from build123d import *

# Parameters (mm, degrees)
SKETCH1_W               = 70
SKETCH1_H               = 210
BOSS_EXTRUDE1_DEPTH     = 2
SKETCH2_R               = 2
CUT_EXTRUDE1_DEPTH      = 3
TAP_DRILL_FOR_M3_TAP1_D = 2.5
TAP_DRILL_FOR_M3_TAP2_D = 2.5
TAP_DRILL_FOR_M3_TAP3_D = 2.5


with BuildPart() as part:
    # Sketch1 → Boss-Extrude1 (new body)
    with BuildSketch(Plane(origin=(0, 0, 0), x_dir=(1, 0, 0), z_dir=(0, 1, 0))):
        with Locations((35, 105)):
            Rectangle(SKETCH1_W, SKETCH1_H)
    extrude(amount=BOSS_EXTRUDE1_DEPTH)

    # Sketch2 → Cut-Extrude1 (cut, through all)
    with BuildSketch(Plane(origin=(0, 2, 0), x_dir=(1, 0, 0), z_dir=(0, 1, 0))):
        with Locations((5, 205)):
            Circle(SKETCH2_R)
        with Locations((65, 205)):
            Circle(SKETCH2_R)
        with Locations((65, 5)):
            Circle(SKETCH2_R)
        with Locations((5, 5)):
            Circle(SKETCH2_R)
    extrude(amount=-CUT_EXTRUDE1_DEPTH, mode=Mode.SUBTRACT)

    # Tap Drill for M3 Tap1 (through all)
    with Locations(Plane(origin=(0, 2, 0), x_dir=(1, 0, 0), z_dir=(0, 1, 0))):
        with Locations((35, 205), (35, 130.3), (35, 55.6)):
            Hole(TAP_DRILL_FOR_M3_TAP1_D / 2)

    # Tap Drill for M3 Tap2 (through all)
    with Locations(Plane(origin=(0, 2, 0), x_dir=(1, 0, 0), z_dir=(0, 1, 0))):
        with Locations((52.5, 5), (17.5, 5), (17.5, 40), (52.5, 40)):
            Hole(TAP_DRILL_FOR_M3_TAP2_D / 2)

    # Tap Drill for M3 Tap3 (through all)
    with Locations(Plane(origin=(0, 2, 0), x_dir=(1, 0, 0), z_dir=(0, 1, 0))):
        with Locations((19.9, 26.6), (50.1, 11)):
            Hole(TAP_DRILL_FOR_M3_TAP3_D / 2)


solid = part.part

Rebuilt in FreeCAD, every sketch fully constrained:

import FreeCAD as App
import Part
import Sketcher


def add_polygon(sketch, points):
    """Adds a closed chain of lines whose ends are joined by coincident constraints."""
    first, n = sketch.GeometryCount, len(points)
    for a, b in zip(points, points[1:] + points[:1]):
        sketch.addGeometry(Part.LineSegment(App.Vector(*a, 0), App.Vector(*b, 0)), False)
    for i in range(n):
        sketch.addConstraint(Sketcher.Constraint("Coincident", first + i, 2, first + (i + 1) % n, 1))

doc = App.newDocument("Part")
body = doc.addObject("PartDesign::Body", "Body")

# Sketch on XZ plane
sketch1 = doc.addObject("Sketcher::SketchObject", "Sketch")
body.addObject(sketch1)
sketch1.AttachmentSupport = (doc.XZ_Plane, [""])
sketch1.MapMode = "FlatFace"
add_polygon(sketch1, [(0, -210), (0, 0), (70, 0), (70, -210)])  # lines 0-3
sketch1.addConstraint(Sketcher.Constraint("Vertical", 0))
sketch1.addConstraint(Sketcher.Constraint("Horizontal", 1))
sketch1.addConstraint(Sketcher.Constraint("Vertical", 2))
sketch1.addConstraint(Sketcher.Constraint("Horizontal", 3))
sketch1.addConstraint(Sketcher.Constraint("Coincident", 0, 2, -1, 1))
sketch1.addConstraint(Sketcher.Constraint("DistanceX", 1, 1, 1, 2, 70.0))
sketch1.addConstraint(Sketcher.Constraint("DistanceY", 0, 1, 0, 2, 210.0))
pad1 = doc.addObject("PartDesign::Pad", "Pad")
body.addObject(pad1)
pad1.Profile = sketch1
pad1.Length = 2
pad1.Reversed = True

# Sketch on XZ plane
sketch2 = doc.addObject("Sketcher::SketchObject", "Sketch001")
body.addObject(sketch2)
sketch2.AttachmentSupport = (doc.XZ_Plane, [""])
sketch2.MapMode = "FlatFace"
sketch2.AttachmentOffset = App.Placement(App.Vector(0, 0, -2), App.Rotation())
sketch2.addGeometry(Part.Circle(App.Vector(5, -205, 0), App.Vector(0, 0, 1), 2), False)
sketch2.addGeometry(Part.Circle(App.Vector(65, -205, 0), App.Vector(0, 0, 1), 2), False)
sketch2.addGeometry(Part.Circle(App.Vector(65, -5, 0), App.Vector(0, 0, 1), 2), False)
sketch2.addGeometry(Part.Circle(App.Vector(5, -5, 0), App.Vector(0, 0, 1), 2), False)
sketch2.addConstraint(Sketcher.Constraint("Equal", 0, 1))
sketch2.addConstraint(Sketcher.Constraint("Equal", 1, 2))
sketch2.addConstraint(Sketcher.Constraint("Equal", 2, 3))
sketch2.addConstraint(Sketcher.Constraint("Horizontal", 0, 3, 1, 3))
sketch2.addConstraint(Sketcher.Constraint("Horizontal", 2, 3, 3, 3))
sketch2.addConstraint(Sketcher.Constraint("Vertical", 1, 3, 2, 3))
sketch2.addConstraint(Sketcher.Constraint("Vertical", 0, 3, 3, 3))
sketch2.addConstraint(Sketcher.Constraint("Diameter", 0, 4.0))
sketch2.addConstraint(Sketcher.Constraint("DistanceX", -1, 1, 0, 3, 5.0))
sketch2.addConstraint(Sketcher.Constraint("DistanceY", 0, 3, -1, 1, 205.0))
sketch2.addConstraint(Sketcher.Constraint("DistanceX", -1, 1, 1, 3, 65.0))
sketch2.addConstraint(Sketcher.Constraint("DistanceY", 2, 3, -1, 1, 5.0))
pocket1 = doc.addObject("PartDesign::Pocket", "Pocket")
body.addObject(pocket1)
pocket1.Profile = sketch2
pocket1.Type = "ThroughAll"
pocket1.Reversed = True

# Sketch on XZ plane
sketch3 = doc.addObject("Sketcher::SketchObject", "Sketch002")
body.addObject(sketch3)
sketch3.AttachmentSupport = (doc.XZ_Plane, [""])
sketch3.MapMode = "FlatFace"
sketch3.AttachmentOffset = App.Placement(App.Vector(0, 0, -2), App.Rotation())
sketch3.addGeometry(Part.Circle(App.Vector(35, -205, 0), App.Vector(0, 0, 1), 1.2), False)
sketch3.addGeometry(Part.Circle(App.Vector(35, -130.3, 0), App.Vector(0, 0, 1), 1.2), False)
sketch3.addGeometry(Part.Circle(App.Vector(35, -55.6, 0), App.Vector(0, 0, 1), 1.2), False)
sketch3.addConstraint(Sketcher.Constraint("Equal", 0, 1))
sketch3.addConstraint(Sketcher.Constraint("Equal", 1, 2))
sketch3.addConstraint(Sketcher.Constraint("Vertical", 0, 3, 1, 3))
sketch3.addConstraint(Sketcher.Constraint("Vertical", 1, 3, 2, 3))
sketch3.addConstraint(Sketcher.Constraint("Diameter", 0, 2.5))
sketch3.addConstraint(Sketcher.Constraint("DistanceX", -1, 1, 0, 3, 35.0))
sketch3.addConstraint(Sketcher.Constraint("DistanceY", 0, 3, -1, 1, 205.0))
sketch3.addConstraint(Sketcher.Constraint("DistanceY", 1, 3, -1, 1, 130.3))
sketch3.addConstraint(Sketcher.Constraint("DistanceY", 2, 3, -1, 1, 55.6))
doc.recompute()
hole = doc.addObject("PartDesign::Hole", "Hole")
body.addObject(hole)
hole.Profile = sketch3
hole.ThreadType = "None"
hole.Diameter = 2.5
hole.DepthType = "ThroughAll"
hole.Reversed = True

# Sketch on XZ plane
sketch4 = doc.addObject("Sketcher::SketchObject", "Sketch003")
body.addObject(sketch4)
sketch4.AttachmentSupport = (doc.XZ_Plane, [""])
sketch4.MapMode = "FlatFace"
sketch4.AttachmentOffset = App.Placement(App.Vector(0, 0, -2), App.Rotation())
sketch4.addGeometry(Part.Circle(App.Vector(52.5, -5, 0), App.Vector(0, 0, 1), 1.2), False)
sketch4.addGeometry(Part.Circle(App.Vector(17.5, -5, 0), App.Vector(0, 0, 1), 1.2), False)
sketch4.addGeometry(Part.Circle(App.Vector(17.5, -40, 0), App.Vector(0, 0, 1), 1.2), False)
sketch4.addGeometry(Part.Circle(App.Vector(52.5, -40, 0), App.Vector(0, 0, 1), 1.2), False)
sketch4.addConstraint(Sketcher.Constraint("Equal", 0, 1))
sketch4.addConstraint(Sketcher.Constraint("Equal", 1, 2))
sketch4.addConstraint(Sketcher.Constraint("Equal", 2, 3))
sketch4.addConstraint(Sketcher.Constraint("Horizontal", 0, 3, 1, 3))
sketch4.addConstraint(Sketcher.Constraint("Horizontal", 2, 3, 3, 3))
sketch4.addConstraint(Sketcher.Constraint("Vertical", 1, 3, 2, 3))
sketch4.addConstraint(Sketcher.Constraint("Vertical", 0, 3, 3, 3))
sketch4.addConstraint(Sketcher.Constraint("Diameter", 0, 2.5))
sketch4.addConstraint(Sketcher.Constraint("DistanceY", 0, 3, -1, 1, 5.0))
sketch4.addConstraint(Sketcher.Constraint("DistanceY", 2, 3, -1, 1, 40.0))
sketch4.addConstraint(Sketcher.Constraint("DistanceX", 1, 3, 0, 3, 35.0))
sketch4.addConstraint(Sketcher.Constraint("DistanceX", -1, 1, 0, 3, 52.5))
doc.recompute()
hole2 = doc.addObject("PartDesign::Hole", "Hole001")
body.addObject(hole2)
hole2.Profile = sketch4
hole2.ThreadType = "None"
hole2.Diameter = 2.5
hole2.DepthType = "ThroughAll"
hole2.Reversed = True

# Sketch on XZ plane
sketch5 = doc.addObject("Sketcher::SketchObject", "Sketch004")
body.addObject(sketch5)
sketch5.AttachmentSupport = (doc.XZ_Plane, [""])
sketch5.MapMode = "FlatFace"
sketch5.AttachmentOffset = App.Placement(App.Vector(0, 0, -2), App.Rotation())
sketch5.addGeometry(Part.Circle(App.Vector(19.9, -26.6, 0), App.Vector(0, 0, 1), 1.2), False)
sketch5.addGeometry(Part.Circle(App.Vector(50.1, -11, 0), App.Vector(0, 0, 1), 1.2), False)
sketch5.addConstraint(Sketcher.Constraint("Equal", 0, 1))
sketch5.addConstraint(Sketcher.Constraint("Diameter", 0, 2.5))
sketch5.addConstraint(Sketcher.Constraint("DistanceY", 1, 3, -1, 1, 11.0))
sketch5.addConstraint(Sketcher.Constraint("DistanceX", -1, 1, 0, 3, 19.9))
sketch5.addConstraint(Sketcher.Constraint("DistanceY", 0, 3, -1, 1, 26.6))
sketch5.addConstraint(Sketcher.Constraint("DistanceX", -1, 1, 1, 3, 50.1))
doc.recompute()
hole3 = doc.addObject("PartDesign::Hole", "Hole002")
body.addObject(hole3)
hole3.Profile = sketch5
hole3.ThreadType = "None"
hole3.Diameter = 2.5
hole3.DepthType = "ThroughAll"
hole3.Reversed = True

doc.recompute()
